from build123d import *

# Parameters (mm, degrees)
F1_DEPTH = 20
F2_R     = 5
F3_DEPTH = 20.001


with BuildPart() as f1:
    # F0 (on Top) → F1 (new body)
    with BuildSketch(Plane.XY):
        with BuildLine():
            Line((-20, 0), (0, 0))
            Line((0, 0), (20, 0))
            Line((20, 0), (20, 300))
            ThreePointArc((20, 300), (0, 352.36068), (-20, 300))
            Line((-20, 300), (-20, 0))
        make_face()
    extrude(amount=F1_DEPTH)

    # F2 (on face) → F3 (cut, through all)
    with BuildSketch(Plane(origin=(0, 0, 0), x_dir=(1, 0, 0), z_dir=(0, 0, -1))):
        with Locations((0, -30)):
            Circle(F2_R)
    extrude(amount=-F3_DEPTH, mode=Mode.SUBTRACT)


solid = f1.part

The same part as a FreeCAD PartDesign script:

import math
import FreeCAD as App
import Part
import Sketcher
Q = App.Units.Quantity

doc = App.newDocument("Part")
body = doc.addObject("PartDesign::Body", "Body")

sketch1 = body.newObject("Sketcher::SketchObject", "Sketch")
sketch1.AttachmentSupport = (doc.getObject("XY_Plane"), [""])
sketch1.MapMode = "FlatFace"
sketch1.addGeometry([
    Part.LineSegment(App.Vector(-20, 0, 0), App.Vector(20, 0, 0)),
    Part.LineSegment(App.Vector(20, 0, 0), App.Vector(20, 300, 0)),
    Part.ArcOfCircle(Part.Circle(App.Vector(0, 322, 0), App.Vector(0, 0, 1), 30), math.radians(-48), math.radians(228)),
    Part.LineSegment(App.Vector(-20, 300, 0), App.Vector(-20, 0, 0)),
], False)
sketch1.addConstraint([
    Sketcher.Constraint("Coincident", 0, 2, 1, 1),
    Sketcher.Constraint("Coincident", 1, 2, 2, 1),
    Sketcher.Constraint("Coincident", 2, 2, 3, 1),
    Sketcher.Constraint("Coincident", 3, 2, 0, 1),
    Sketcher.Constraint("Horizontal", 0),
    Sketcher.Constraint("Vertical", 1),
    Sketcher.Constraint("Vertical", 3),
    Sketcher.Constraint("Symmetric", 0, 2, 3, 2, -1, 1),
    Sketcher.Constraint("PointOnObject", 2, 3, -2),
    Sketcher.Constraint("Radius", 2, Q("30 mm")),
    Sketcher.Constraint("DistanceX", 0, 1, 0, 2, Q("40 mm")),
    Sketcher.Constraint("DistanceY", 1, 1, 1, 2, Q("300 mm")),
])
pad1 = body.newObject("PartDesign::Pad", "Pad")
pad1.Profile = sketch1
pad1.Length = 20

sketch2 = body.newObject("Sketcher::SketchObject", "Sketch001")
sketch2.AttachmentSupport = (doc.getObject("XY_Plane"), [""])
sketch2.MapMode = "FlatFace"
sketch2.addGeometry(Part.Circle(App.Vector(0, 30, 0), App.Vector(0, 0, 1), 5), False)
sketch2.addConstraint([
    Sketcher.Constraint("PointOnObject", 0, 3, -2),
    Sketcher.Constraint("Diameter", 0, Q("10 mm")),
    Sketcher.Constraint("DistanceY", -1, 1, 0, 3, Q("30 mm")),
])
pocket1 = body.newObject("PartDesign::Pocket", "Pocket")
pocket1.Profile = sketch2
pocket1.Type = "ThroughAll"
pocket1.Reversed = True

doc.recompute()
